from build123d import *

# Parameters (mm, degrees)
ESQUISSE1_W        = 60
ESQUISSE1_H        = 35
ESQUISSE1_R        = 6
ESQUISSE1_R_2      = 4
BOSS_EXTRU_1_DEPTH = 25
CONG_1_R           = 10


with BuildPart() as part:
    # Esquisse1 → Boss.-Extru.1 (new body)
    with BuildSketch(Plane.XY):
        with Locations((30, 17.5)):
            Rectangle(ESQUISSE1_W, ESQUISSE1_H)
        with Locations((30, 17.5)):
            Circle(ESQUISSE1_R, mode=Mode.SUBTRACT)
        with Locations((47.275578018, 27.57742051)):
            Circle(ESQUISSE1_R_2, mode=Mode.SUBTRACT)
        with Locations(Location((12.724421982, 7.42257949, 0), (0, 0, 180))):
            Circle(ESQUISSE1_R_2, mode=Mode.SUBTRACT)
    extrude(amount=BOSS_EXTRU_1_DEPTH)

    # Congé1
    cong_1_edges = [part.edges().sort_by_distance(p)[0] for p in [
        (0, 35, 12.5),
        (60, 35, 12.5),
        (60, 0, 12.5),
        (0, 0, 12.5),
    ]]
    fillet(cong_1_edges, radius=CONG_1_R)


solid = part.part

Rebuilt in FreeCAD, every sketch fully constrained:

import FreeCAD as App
import Part
import Sketcher
from FreeCAD import Vector


def edges_at(feature, points):
    """Names of the edges that pass closest to the given points."""
    edges = feature.Shape.Edges
    near = lambda p: min(range(len(edges)), key=lambda i: edges[i].distToShape(Part.Vertex(*p))[0])
    return sorted({f"Edge{near(p) + 1}" for p in points})


def add_polygon(sketch, points):
    """Adds a closed chain of lines whose ends are joined by coincident constraints."""
    first, n = sketch.GeometryCount, len(points)
    for a, b in zip(points, points[1:] + points[:1]):
        sketch.addGeometry(Part.LineSegment(App.Vector(*a, 0), App.Vector(*b, 0)), False)
    for i in range(n):
        sketch.addConstraint(Sketcher.Constraint("Coincident", first + i, 2, first + (i + 1) % n, 1))

doc = App.newDocument("Part")
params = doc.addObject("Spreadsheet::Sheet", "Params")
for row, (alias, value) in enumerate([
    ("sketch1_diameter", "8 mm"),
    ("sketch1_diameter2", "12 mm"),
    ("sketch1_width", "60 mm"),
    ("sketch1_height", "35 mm"),
    ("pad1_length", "25 mm"),
    ("fillet_radius", "10 mm"),
], start=1):
    params.set(f"A{row}", alias)
    params.set(f"B{row}", "=" + value)
    params.setAlias(f"B{row}", alias)

body = doc.addObject("PartDesign::Body", "Body")

# Sketch on XY plane
sketch1 = body.newObject("Sketcher::SketchObject", "Sketch")
sketch1.AttachmentSupport = (doc.getObject("XY_Plane"), [""])
sketch1.MapMode = "FlatFace"
add_polygon(sketch1, [(0, 35), (0, 0), (60, 0), (60, 35)])  # lines 0-3
sketch1.addGeometry(Part.Circle(Vector(12.7, 7.4, 0), Vector(0, 0, 1), 4), False)  # 4
sketch1.addGeometry(Part.Circle(Vector(30, 17.5, 0), Vector(0, 0, 1), 6), False)  # 5
sketch1.addGeometry(Part.Circle(Vector(47.3, 27.6, 0), Vector(0, 0, 1), 4), False)  # 6
sketch1.addConstraint([
    Sketcher.Constraint("Vertical", 0),
    Sketcher.Constraint("Horizontal", 1),
    Sketcher.Constraint("Vertical", 2),
    Sketcher.Constraint("Horizontal", 3),
    Sketcher.Constraint("Coincident", 0, 2, -1, 1),
    Sketcher.Constraint("Equal", 4, 6),
    Sketcher.Constraint("Diameter", 4, 8.0),
    Sketcher.Constraint("Diameter", 5, 12.0),
    Sketcher.Constraint("DistanceX", 1, 1, 1, 2, 60.0),
    Sketcher.Constraint("DistanceY", 0, 2, 0, 1, 35.0),
    Sketcher.Constraint("DistanceX", -1, 1, 5, 3, 30.0),
    Sketcher.Constraint("DistanceY", -1, 1, 5, 3, 17.5),
    Sketcher.Constraint("DistanceX", -1, 1, 4, 3, 12.724422),
    Sketcher.Constraint("DistanceY", -1, 1, 4, 3, 7.422579),
    Sketcher.Constraint("DistanceX", -1, 1, 6, 3, 47.275578),
    Sketcher.Constraint("DistanceY", -1, 1, 6, 3, 27.577421),
])
sketch1.setExpression("Constraints[10]", "Params.sketch1_diameter")
sketch1.setExpression("Constraints[11]", "Params.sketch1_diameter2")
sketch1.setExpression("Constraints[12]", "Params.sketch1_width")
sketch1.setExpression("Constraints[13]", "Params.sketch1_height")
pad1 = body.newObject("PartDesign::Pad", "Pad")
pad1.Profile = sketch1
pad1.setExpression("Length", "Params.pad1_length")
doc.recompute()

fillet = body.newObject("PartDesign::Fillet", "Fillet")
fillet.Base = (pad1, edges_at(pad1, [
    (0, 35, 12.5),
    (60, 35, 12.5),
    (60, 0, 12.5),
    (0, 0, 12.5),
]))
fillet.setExpression("Radius", "Params.fillet_radius")

doc.recompute()
